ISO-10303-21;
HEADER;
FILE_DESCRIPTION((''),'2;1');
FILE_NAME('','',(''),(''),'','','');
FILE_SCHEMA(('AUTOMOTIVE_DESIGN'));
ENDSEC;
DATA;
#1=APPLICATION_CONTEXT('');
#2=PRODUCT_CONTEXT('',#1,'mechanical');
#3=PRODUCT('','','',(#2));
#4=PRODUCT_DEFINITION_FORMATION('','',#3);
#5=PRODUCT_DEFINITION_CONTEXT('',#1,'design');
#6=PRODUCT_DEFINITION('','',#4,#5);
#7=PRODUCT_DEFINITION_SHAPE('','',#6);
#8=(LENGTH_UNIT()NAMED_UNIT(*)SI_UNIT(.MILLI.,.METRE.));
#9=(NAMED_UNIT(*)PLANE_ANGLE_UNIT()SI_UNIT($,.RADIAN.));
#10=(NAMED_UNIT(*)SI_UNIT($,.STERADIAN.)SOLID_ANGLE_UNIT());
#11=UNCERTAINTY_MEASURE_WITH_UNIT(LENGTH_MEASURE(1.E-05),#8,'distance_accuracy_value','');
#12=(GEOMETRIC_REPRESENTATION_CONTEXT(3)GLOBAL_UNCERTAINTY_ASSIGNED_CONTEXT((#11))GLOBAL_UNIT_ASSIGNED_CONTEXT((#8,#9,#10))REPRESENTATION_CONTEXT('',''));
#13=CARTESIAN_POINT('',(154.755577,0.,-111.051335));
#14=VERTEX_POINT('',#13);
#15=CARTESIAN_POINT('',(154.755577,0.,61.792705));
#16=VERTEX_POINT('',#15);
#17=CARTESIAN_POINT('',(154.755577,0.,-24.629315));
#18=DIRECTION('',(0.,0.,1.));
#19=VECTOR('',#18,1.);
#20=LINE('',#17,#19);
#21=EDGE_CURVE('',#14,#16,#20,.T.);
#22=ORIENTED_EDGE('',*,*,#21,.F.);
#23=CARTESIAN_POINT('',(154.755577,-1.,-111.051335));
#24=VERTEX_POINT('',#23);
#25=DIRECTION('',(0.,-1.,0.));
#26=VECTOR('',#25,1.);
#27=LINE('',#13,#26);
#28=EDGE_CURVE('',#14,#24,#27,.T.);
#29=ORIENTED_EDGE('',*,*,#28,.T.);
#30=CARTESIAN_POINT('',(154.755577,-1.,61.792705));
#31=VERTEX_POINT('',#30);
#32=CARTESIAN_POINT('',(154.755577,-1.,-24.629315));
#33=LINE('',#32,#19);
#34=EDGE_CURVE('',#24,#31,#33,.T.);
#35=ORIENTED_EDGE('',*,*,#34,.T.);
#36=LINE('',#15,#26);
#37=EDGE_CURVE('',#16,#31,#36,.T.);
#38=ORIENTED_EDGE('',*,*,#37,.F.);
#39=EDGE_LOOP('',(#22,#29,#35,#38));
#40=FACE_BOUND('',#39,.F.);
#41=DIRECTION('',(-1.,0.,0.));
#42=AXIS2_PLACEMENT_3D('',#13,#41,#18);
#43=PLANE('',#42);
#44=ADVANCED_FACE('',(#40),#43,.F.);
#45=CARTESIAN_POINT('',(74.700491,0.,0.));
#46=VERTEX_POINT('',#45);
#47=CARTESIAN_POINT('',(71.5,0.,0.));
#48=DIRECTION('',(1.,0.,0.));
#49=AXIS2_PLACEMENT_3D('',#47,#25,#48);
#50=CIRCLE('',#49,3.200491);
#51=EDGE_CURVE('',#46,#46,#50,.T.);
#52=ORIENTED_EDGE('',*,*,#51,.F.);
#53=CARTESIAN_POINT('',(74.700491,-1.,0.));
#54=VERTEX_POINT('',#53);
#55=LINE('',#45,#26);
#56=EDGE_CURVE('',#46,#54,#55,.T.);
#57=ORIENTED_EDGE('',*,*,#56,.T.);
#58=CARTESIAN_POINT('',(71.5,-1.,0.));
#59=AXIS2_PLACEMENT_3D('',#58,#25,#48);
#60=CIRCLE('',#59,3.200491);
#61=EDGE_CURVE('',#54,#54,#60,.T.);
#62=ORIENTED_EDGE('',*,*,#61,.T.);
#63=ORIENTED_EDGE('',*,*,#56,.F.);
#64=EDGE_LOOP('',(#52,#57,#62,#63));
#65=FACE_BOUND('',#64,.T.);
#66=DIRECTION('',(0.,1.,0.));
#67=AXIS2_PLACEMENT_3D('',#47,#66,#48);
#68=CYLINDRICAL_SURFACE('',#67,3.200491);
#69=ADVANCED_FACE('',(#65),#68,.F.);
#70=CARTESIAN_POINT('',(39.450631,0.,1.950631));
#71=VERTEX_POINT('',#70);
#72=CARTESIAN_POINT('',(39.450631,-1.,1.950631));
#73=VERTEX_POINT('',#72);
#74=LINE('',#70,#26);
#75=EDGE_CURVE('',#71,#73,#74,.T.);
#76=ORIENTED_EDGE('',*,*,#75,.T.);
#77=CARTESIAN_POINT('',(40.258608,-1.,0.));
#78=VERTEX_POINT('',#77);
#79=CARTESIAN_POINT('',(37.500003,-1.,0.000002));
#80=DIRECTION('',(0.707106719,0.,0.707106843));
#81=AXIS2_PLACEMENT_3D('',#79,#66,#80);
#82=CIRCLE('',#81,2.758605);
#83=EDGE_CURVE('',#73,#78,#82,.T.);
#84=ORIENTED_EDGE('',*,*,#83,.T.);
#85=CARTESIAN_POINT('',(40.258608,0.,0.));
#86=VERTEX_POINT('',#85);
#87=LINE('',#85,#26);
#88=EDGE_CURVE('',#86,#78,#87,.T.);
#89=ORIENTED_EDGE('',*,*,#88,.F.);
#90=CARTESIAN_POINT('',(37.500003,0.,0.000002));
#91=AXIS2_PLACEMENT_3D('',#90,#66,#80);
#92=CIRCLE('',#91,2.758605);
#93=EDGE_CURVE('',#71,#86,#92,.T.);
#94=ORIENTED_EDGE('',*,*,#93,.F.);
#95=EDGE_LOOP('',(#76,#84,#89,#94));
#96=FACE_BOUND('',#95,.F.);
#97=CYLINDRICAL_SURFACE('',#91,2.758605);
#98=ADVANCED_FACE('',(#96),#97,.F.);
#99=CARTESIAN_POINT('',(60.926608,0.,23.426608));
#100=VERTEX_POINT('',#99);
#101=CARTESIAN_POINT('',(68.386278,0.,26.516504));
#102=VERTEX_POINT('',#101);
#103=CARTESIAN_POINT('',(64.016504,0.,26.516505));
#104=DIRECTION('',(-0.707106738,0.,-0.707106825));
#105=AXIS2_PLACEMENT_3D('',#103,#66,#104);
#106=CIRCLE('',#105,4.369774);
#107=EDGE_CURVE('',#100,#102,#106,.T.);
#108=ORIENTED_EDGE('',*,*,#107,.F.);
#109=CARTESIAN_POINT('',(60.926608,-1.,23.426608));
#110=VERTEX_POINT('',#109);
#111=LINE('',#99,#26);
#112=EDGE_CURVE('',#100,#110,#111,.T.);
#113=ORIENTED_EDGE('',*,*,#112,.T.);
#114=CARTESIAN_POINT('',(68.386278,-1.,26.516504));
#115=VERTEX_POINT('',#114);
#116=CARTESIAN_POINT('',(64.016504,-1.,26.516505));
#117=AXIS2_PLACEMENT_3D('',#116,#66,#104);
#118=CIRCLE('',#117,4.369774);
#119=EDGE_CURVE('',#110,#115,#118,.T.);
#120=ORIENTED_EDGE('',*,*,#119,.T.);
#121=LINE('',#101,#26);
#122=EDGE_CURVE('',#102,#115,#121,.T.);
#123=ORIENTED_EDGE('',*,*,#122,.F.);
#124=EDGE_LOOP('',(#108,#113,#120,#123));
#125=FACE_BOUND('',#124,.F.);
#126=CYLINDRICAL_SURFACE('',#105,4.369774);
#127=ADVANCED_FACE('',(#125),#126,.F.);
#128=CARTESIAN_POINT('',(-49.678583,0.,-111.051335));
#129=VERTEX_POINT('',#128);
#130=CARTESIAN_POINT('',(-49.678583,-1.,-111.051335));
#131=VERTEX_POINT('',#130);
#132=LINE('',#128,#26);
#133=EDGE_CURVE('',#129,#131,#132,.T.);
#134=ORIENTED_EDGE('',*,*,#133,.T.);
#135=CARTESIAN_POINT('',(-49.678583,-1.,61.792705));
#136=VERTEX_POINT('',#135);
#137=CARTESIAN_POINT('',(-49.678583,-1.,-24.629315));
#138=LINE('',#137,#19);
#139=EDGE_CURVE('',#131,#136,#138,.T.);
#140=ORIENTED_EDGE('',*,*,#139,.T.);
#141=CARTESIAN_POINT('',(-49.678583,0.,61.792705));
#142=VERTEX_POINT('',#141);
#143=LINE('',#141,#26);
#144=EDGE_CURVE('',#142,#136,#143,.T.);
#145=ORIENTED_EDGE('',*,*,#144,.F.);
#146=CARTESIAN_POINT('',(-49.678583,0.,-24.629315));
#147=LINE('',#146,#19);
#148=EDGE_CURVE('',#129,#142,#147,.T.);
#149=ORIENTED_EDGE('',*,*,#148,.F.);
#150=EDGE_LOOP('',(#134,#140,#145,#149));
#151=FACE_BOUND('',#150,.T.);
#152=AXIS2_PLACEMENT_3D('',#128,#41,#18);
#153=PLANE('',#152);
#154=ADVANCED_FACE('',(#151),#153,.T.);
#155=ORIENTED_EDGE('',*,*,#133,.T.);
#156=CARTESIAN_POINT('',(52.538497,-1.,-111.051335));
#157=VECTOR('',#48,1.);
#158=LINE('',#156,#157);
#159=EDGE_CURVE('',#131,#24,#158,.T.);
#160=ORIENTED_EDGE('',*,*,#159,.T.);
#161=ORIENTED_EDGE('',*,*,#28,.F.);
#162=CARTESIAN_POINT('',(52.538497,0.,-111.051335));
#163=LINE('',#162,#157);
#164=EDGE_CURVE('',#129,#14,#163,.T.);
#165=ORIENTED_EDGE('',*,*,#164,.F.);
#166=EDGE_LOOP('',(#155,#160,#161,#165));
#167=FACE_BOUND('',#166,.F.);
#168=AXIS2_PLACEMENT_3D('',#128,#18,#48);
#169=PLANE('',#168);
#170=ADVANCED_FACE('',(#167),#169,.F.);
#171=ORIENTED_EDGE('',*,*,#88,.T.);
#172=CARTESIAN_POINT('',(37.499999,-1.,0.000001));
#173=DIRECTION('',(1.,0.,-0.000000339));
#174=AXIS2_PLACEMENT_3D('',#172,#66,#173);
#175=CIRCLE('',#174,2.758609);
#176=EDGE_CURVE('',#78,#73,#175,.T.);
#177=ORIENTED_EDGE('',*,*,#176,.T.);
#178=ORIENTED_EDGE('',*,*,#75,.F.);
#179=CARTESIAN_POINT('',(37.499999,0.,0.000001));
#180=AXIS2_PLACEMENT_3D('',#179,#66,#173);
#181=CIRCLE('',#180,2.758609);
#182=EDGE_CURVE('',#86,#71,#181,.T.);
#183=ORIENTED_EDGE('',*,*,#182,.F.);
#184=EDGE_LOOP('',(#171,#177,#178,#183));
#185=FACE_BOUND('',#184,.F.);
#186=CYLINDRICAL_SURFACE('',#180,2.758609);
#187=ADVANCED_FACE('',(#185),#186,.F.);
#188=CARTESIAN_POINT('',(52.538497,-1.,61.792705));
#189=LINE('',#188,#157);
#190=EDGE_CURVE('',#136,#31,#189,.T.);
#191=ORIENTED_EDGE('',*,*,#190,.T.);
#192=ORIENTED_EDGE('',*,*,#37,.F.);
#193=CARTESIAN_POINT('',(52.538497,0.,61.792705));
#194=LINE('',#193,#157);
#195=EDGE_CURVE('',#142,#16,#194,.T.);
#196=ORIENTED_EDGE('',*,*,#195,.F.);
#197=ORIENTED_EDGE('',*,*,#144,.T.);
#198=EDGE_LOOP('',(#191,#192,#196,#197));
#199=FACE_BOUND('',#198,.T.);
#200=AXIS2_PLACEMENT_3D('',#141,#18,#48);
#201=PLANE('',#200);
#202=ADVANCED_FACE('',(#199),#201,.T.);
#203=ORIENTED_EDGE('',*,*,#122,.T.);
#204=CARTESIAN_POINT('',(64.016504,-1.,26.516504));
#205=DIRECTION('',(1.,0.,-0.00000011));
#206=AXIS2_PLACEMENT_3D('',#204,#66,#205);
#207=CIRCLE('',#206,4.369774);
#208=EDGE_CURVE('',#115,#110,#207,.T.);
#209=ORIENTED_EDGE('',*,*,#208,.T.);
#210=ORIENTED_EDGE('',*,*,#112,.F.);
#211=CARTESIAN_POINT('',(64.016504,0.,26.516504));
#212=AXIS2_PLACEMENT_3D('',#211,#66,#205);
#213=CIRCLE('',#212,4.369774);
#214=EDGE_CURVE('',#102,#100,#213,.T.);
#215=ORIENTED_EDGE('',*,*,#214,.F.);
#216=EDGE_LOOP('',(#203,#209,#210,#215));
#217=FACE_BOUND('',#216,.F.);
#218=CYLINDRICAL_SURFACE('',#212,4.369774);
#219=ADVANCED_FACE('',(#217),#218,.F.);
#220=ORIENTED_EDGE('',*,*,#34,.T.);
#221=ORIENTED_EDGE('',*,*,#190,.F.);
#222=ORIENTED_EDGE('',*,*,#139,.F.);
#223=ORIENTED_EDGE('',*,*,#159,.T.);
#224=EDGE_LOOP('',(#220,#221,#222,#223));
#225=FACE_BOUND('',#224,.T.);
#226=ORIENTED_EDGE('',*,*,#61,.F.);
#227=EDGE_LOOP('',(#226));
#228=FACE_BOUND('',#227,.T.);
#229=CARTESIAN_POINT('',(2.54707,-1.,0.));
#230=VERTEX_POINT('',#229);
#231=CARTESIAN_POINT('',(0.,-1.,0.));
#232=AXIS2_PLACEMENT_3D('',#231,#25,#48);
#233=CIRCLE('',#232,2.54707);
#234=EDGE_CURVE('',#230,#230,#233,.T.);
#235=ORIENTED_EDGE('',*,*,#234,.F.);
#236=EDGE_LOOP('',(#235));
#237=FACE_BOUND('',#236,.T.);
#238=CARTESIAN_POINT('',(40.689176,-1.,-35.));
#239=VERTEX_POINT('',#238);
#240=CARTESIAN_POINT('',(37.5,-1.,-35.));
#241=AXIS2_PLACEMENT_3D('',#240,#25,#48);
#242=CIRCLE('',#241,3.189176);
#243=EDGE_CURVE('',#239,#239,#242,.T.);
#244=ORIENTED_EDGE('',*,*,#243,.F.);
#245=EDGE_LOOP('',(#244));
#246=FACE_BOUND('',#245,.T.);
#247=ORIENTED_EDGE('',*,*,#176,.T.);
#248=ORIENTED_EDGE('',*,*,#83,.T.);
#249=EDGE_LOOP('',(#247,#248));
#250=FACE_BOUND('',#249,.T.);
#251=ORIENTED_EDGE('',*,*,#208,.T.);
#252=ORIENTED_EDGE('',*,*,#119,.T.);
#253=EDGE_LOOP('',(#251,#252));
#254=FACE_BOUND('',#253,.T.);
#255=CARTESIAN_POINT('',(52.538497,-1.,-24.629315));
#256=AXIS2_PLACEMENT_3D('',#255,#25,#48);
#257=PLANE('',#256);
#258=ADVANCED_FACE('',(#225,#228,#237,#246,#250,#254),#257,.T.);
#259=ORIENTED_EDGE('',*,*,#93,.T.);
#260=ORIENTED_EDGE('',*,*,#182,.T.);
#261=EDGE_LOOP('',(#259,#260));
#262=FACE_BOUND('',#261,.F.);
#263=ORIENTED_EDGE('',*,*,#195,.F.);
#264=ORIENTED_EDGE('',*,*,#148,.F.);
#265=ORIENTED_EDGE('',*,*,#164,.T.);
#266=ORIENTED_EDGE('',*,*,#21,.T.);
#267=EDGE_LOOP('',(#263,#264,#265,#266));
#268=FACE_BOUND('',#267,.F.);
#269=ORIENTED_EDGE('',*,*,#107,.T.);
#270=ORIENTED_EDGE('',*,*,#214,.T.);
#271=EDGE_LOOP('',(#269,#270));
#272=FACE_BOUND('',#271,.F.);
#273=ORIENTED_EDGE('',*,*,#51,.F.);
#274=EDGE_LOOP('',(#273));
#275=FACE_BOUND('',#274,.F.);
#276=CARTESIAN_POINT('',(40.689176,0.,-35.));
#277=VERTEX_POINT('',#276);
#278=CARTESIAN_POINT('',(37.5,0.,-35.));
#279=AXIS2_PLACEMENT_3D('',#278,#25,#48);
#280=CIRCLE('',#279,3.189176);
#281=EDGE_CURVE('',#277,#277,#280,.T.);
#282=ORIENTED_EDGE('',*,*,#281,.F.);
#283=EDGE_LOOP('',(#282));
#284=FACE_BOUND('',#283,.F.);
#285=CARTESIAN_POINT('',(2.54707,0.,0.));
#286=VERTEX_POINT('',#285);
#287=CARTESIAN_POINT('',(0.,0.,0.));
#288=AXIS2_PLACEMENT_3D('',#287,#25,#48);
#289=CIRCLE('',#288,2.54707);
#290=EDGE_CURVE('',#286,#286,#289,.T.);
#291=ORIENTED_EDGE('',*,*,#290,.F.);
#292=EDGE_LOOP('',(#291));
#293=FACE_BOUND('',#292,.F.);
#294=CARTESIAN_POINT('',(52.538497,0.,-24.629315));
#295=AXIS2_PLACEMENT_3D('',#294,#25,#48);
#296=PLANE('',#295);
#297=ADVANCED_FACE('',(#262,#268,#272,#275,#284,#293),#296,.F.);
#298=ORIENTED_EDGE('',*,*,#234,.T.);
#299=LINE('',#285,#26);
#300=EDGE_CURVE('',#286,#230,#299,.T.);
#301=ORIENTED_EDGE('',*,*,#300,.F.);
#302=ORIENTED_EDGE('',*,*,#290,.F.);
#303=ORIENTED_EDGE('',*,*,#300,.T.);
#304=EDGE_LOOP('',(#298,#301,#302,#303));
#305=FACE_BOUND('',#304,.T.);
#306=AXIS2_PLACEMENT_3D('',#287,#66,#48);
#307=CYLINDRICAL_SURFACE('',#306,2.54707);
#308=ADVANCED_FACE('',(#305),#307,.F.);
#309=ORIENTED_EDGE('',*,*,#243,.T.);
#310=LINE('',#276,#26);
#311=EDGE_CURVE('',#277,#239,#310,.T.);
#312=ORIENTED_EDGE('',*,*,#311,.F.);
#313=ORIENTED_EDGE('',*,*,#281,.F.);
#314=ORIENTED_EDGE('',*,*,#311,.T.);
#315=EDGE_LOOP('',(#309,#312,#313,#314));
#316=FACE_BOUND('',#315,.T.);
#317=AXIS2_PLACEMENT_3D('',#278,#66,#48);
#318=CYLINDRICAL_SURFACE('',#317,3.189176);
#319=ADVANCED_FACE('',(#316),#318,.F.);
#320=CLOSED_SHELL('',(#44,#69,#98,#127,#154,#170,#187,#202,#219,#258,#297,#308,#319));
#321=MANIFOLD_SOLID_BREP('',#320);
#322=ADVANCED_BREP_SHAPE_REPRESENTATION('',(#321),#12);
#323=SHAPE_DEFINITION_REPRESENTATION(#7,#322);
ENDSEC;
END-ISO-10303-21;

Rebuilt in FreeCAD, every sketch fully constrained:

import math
import FreeCAD as App
import Part
import Sketcher
Q = App.Units.Quantity


def add_polygon(sketch, points):
    """Adds a closed chain of lines whose ends are joined by coincident constraints."""
    first, n = sketch.GeometryCount, len(points)
    for a, b in zip(points, points[1:] + points[:1]):
        sketch.addGeometry(Part.LineSegment(App.Vector(*a, 0), App.Vector(*b, 0)), False)
    for i in range(n):
        sketch.addConstraint(Sketcher.Constraint("Coincident", first + i, 2, first + (i + 1) % n, 1))

doc = App.newDocument("Part")
params = doc.addObject("Spreadsheet::Sheet", "Params")
for row, (alias, value) in enumerate([
    ("pad1_length", "1 mm"),
], start=1):
    params.set(f"A{row}", alias)
    params.set(f"B{row}", "=" + value)
    params.setAlias(f"B{row}", alias)

body = doc.addObject("PartDesign::Body", "Body")

# Sketch on XZ plane
sketch1 = doc.addObject("Sketcher::SketchObject", "Sketch")
body.addObject(sketch1)
sketch1.AttachmentSupport = (doc.XZ_Plane, [""])
sketch1.MapMode = "FlatFace"
add_polygon(sketch1, [(-49.7, 61.8), (-49.7, -111.1), (154.8, -111.1), (154.8, 61.8)])  # lines 0-3
sketch1.addGeometry(Part.Circle(App.Vector(37.5, -35, 0), App.Vector(0, 0, 1), 3.2), False)  # 4
sketch1.addGeometry(Part.Circle(App.Vector(0, 0, 0), App.Vector(0, 0, 1), 2.5), False)  # 5
sketch1.addGeometry(Part.ArcOfCircle(Part.Circle(App.Vector(37.5, 0, 0), App.Vector(0, 0, 1), 2.8), math.radians(45), math.radians(360)), False)  # 6
sketch1.addGeometry(Part.ArcOfCircle(Part.Circle(App.Vector(37.5, 0, 0), App.Vector(0, 0, 1), 2.8), math.radians(0), math.radians(45)), False)  # 7
sketch1.addGeometry(Part.Circle(App.Vector(71.5, 0, 0), App.Vector(0, 0, 1), 3.2), False)  # 8
sketch1.addGeometry(Part.ArcOfCircle(Part.Circle(App.Vector(64, 26.5, 0), App.Vector(0, 0, 1), 4.4), math.radians(0), math.radians(225)), False)  # 9
sketch1.addGeometry(Part.ArcOfCircle(Part.Circle(App.Vector(64, 26.5, 0), App.Vector(0, 0, 1), 4.4), math.radians(-135), math.radians(0)), False)  # 10
sketch1.addConstraint([
    Sketcher.Constraint("Tangent", 6, 1, 7, 2),
    Sketcher.Constraint("Coincident", 7, 1, 6, 2),
    Sketcher.Constraint("Tangent", 9, 1, 10, 2),
    Sketcher.Constraint("Coincident", 10, 1, 9, 2),
    Sketcher.Constraint("Vertical", 0),
    Sketcher.Constraint("Horizontal", 1),
    Sketcher.Constraint("Vertical", 2),
    Sketcher.Constraint("Horizontal", 3),
    Sketcher.Constraint("Coincident", 5, 3, -1, 1),
    Sketcher.Constraint("PointOnObject", 6, 3, -1),
    Sketcher.Constraint("PointOnObject", 8, 3, -1),
    Sketcher.Constraint("PointOnObject", 7, 1, -1),
    Sketcher.Constraint("Horizontal", 10, 3, 9, 1),
    Sketcher.Constraint("Vertical", 4, 3, 6, 3),
    Sketcher.Constraint("DistanceY", 4, 3, -1, 1, Q("35 mm")),
    Sketcher.Constraint("DistanceX", 6, 3, 8, 3, Q("34.000001 mm")),
    Sketcher.Constraint("DistanceX", -1, 1, 4, 3, Q("37.5 mm")),
    Sketcher.Constraint("Diameter", 4, Q("6.378352 mm")),
    Sketcher.Constraint("Diameter", 5, Q("5.09414 mm")),
    Sketcher.Constraint("Radius", 6, Q("2.758609 mm")),
    Sketcher.Constraint("Diameter", 8, Q("6.400982 mm")),
    Sketcher.Constraint("Radius", 9, Q("4.369774 mm")),
    Sketcher.Constraint("DistanceX", 1, 1, 1, 2, Q("204.43416 mm")),
    Sketcher.Constraint("DistanceY", 0, 2, 0, 1, Q("172.844041 mm")),
    Sketcher.Constraint("DistanceX", 7, 3, 9, 3, Q("26.516502 mm")),
    Sketcher.Constraint("DistanceY", 10, 3, 2, 2, Q("35.276201 mm")),
    Sketcher.Constraint("DistanceX", -1, 1, 6, 1, Q("39.450631 mm")),
    Sketcher.Constraint("DistanceX", -1, 1, 10, 1, Q("60.926608 mm")),
    Sketcher.Constraint("DistanceY", -1, 1, 10, 1, Q("23.426608 mm")),
    Sketcher.Constraint("DistanceX", 0, 2, -1, 1, Q("49.678583 mm")),
])
pad1 = doc.addObject("PartDesign::Pad", "Pad")
body.addObject(pad1)
pad1.Profile = sketch1
pad1.setExpression("Length", "Params.pad1_length")

doc.recompute()
